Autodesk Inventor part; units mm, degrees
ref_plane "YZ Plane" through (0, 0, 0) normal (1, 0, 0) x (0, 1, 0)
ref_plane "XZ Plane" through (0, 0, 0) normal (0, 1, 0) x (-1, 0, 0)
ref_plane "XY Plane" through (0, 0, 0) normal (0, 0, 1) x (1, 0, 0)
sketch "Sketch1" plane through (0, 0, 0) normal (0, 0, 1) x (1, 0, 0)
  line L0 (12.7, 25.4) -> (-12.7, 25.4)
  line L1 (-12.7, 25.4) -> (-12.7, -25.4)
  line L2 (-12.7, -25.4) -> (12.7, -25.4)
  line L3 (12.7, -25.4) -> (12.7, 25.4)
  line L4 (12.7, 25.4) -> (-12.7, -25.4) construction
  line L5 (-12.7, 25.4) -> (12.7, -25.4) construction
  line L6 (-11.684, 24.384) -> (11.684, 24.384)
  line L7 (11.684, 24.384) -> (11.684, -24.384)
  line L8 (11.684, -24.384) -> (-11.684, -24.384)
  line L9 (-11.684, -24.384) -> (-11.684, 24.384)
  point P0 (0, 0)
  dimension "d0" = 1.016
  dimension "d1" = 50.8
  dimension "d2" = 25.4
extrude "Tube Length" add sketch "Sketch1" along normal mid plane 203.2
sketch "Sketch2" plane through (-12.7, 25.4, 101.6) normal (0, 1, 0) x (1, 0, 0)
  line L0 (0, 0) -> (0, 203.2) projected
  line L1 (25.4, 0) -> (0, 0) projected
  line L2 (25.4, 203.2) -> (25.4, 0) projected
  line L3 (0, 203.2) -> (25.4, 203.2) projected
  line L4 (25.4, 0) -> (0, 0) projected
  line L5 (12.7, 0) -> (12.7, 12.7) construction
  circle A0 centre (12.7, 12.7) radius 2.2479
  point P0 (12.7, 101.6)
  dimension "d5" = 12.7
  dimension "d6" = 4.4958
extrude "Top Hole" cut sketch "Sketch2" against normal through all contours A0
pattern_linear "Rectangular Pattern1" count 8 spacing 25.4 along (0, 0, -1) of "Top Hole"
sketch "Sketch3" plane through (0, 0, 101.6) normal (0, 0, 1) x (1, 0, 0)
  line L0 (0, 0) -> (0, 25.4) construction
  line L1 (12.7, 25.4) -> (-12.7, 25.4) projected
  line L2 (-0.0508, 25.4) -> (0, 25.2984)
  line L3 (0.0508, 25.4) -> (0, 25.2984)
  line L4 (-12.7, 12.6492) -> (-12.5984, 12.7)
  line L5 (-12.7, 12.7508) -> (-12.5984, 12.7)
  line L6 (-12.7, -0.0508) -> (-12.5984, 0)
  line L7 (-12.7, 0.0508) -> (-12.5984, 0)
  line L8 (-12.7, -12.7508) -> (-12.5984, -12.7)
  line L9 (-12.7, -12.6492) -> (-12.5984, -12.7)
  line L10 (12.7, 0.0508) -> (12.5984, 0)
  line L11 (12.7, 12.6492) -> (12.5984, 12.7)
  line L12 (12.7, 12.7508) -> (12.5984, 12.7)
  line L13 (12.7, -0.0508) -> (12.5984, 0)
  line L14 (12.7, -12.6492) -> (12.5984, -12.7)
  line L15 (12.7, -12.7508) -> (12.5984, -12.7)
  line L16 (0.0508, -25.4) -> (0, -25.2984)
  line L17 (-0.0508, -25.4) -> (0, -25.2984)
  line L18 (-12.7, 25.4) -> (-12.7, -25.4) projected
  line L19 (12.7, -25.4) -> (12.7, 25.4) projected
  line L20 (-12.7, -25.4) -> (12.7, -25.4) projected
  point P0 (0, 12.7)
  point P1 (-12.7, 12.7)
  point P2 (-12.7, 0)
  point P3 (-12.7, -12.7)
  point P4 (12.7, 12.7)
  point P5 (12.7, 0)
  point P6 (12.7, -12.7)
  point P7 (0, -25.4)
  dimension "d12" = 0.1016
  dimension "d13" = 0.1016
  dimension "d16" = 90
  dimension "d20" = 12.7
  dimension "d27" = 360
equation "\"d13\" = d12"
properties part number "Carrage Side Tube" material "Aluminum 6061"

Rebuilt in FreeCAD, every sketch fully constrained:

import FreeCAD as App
import Part
import Sketcher
from FreeCAD import Vector
Q = App.Units.Quantity


def add_polygon(sketch, points):
    """Adds a closed chain of lines whose ends are joined by coincident constraints."""
    first, n = sketch.GeometryCount, len(points)
    for a, b in zip(points, points[1:] + points[:1]):
        sketch.addGeometry(Part.LineSegment(App.Vector(*a, 0), App.Vector(*b, 0)), False)
    for i in range(n):
        sketch.addConstraint(Sketcher.Constraint("Coincident", first + i, 2, first + (i + 1) % n, 1))

doc = App.newDocument("Part")
body = doc.addObject("PartDesign::Body", "Body")

# Sketch on XY plane
sketch1 = doc.addObject("Sketcher::SketchObject", "Sketch")
body.addObject(sketch1)
sketch1.AttachmentSupport = (doc.XY_Plane, [""])
sketch1.MapMode = "FlatFace"
add_polygon(sketch1, [(13, -25), (13, 25), (-13, 25), (-13, -25)])  # lines 0-3
add_polygon(sketch1, [(-12, -24), (-12, 24), (12, 24), (12, -24)])  # lines 4-7
sketch1.addConstraint([
    Sketcher.Constraint("Vertical", 0),
    Sketcher.Constraint("Horizontal", 1),
    Sketcher.Constraint("Vertical", 2),
    Sketcher.Constraint("Horizontal", 3),
    Sketcher.Constraint("Vertical", 4),
    Sketcher.Constraint("Horizontal", 5),
    Sketcher.Constraint("Vertical", 6),
    Sketcher.Constraint("Horizontal", 7),
    Sketcher.Constraint("Symmetric", 0, 2, 2, 2, -1, 1),
    Sketcher.Constraint("Symmetric", 4, 2, 6, 2, -1, 1),
    Sketcher.Constraint("DistanceX", 1, 2, 1, 1, Q("1 in")),
    Sketcher.Constraint("DistanceY", 0, 1, 0, 2, Q("2 in")),
    Sketcher.Constraint("DistanceX", 1, 2, 4, 2, Q("0.04 in")),
    Sketcher.Constraint("DistanceY", 4, 2, 1, 2, Q("0.04 in")),
])
pad1 = doc.addObject("PartDesign::Pad", "Pad")
body.addObject(pad1)
pad1.Profile = sketch1
pad1.Length = Q("8 in")
pad1.Midplane = True

# Sketch on XZ plane
sketch2 = doc.addObject("Sketcher::SketchObject", "Sketch001")
body.addObject(sketch2)
sketch2.AttachmentSupport = (doc.XZ_Plane, [""])
sketch2.MapMode = "FlatFace"
sketch2.AttachmentOffset = App.Placement(Vector(0, 0, -1 * 25.4), App.Rotation())
sketch2.addGeometry(Part.Circle(Vector(0, 88.9, 0), Vector(0, 0, 1), 2.2), False)
sketch2.addConstraint([
    Sketcher.Constraint("PointOnObject", 0, 3, -2),
    Sketcher.Constraint("Diameter", 0, Q("0.177 in")),
    Sketcher.Constraint("DistanceY", -1, 1, 0, 3, Q("3.5 in")),
])
pocket1 = doc.addObject("PartDesign::Pocket", "Pocket")
body.addObject(pocket1)
pocket1.Profile = sketch2
pocket1.Type = "ThroughAll"
pocket1.Reversed = True
doc.recompute()

linearpattern = doc.addObject("PartDesign::LinearPattern", "LinearPattern")
body.addObject(linearpattern)
linearpattern.Originals = [pocket1]
linearpattern.Direction = (doc.Z_Axis, [""])
linearpattern.Mode = "offset"
linearpattern.Offset = Q("1 in")
linearpattern.Occurrences = 8
linearpattern.Reversed = True
body.Tip = linearpattern

doc.recompute()
